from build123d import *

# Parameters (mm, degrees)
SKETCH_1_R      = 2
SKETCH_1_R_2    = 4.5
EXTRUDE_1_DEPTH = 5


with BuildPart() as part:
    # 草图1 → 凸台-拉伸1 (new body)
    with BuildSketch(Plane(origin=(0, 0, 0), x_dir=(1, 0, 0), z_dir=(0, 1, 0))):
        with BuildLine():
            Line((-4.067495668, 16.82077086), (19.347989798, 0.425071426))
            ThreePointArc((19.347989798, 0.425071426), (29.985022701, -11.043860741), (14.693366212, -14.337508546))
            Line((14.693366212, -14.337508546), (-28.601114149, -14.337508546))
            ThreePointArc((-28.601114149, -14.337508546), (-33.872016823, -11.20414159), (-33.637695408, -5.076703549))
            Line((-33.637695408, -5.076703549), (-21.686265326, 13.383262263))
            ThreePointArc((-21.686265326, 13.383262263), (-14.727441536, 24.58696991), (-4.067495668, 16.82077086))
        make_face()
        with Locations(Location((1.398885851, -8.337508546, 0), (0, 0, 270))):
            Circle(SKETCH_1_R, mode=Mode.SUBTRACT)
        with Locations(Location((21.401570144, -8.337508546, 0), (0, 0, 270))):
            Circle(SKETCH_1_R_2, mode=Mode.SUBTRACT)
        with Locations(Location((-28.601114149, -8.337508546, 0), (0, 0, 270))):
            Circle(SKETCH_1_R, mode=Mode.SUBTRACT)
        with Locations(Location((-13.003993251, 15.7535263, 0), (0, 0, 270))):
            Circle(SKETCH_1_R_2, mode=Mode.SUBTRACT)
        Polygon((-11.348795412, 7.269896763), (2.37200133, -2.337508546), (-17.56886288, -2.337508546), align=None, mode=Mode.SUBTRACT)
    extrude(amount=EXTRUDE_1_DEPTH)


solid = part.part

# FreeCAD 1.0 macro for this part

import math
import FreeCAD as App
import Part
import Sketcher

V = App.Vector
Q = App.Units.Quantity


def add_polygon(sketch, points):
    """Adds a closed chain of lines whose ends are joined by coincident constraints."""
    first, n = sketch.GeometryCount, len(points)
    for a, b in zip(points, points[1:] + points[:1]):
        sketch.addGeometry(Part.LineSegment(App.Vector(*a, 0), App.Vector(*b, 0)), False)
    for i in range(n):
        sketch.addConstraint(Sketcher.Constraint("Coincident", first + i, 2, first + (i + 1) % n, 1))

doc = App.newDocument("Part")
body = doc.addObject("PartDesign::Body", "Body")

# Sketch on XZ plane
sketch1 = body.newObject("Sketcher::SketchObject", "Sketch")
sketch1.AttachmentSupport = (doc.getObject("XZ_Plane"), [""])
sketch1.MapMode = "FlatFace"
sketch1.addGeometry(Part.LineSegment(V(19.34799, -0.425071, 0), V(-4.067496, -16.820771, 0)), False)  # 0
sketch1.addGeometry(Part.ArcOfCircle(Part.Circle(V(-13.003993, -15.753526, 0), V(0, 0, 1), 9), math.radians(164.730315), math.radians(353.189685)), False)  # 1
sketch1.addGeometry(Part.LineSegment(V(-21.686265, -13.383262, 0), V(-33.637695, 5.076704, 0)), False)  # 2
sketch1.addGeometry(Part.ArcOfCircle(Part.Circle(V(-28.601114, 8.337509, 0), V(0, 0, 1), 6), math.radians(90), math.radians(212.92)), False)  # 3
sketch1.addGeometry(Part.LineSegment(V(-28.601114, 14.337509, 0), V(14.693366, 14.337509, 0)), False)  # 4
sketch1.addGeometry(Part.ArcOfCircle(Part.Circle(V(21.40157, 8.337509, 0), V(0, 0, 1), 9), math.radians(-103.189685), math.radians(138.189685)), False)  # 5
sketch1.addGeometry(Part.Circle(V(21.40157, 8.337509, 0), V(0, 0, 1), 4.5), False)  # 6
sketch1.addGeometry(Part.Circle(V(1.398886, 8.337509, 0), V(0, 0, 1), 2), False)  # 7
sketch1.addGeometry(Part.Circle(V(-28.601114, 8.337509, 0), V(0, 0, 1), 2), False)  # 8
add_polygon(sketch1, [(-11.348795, -7.269897), (2.372001, 2.337509), (-17.568863, 2.337509)])  # lines 9-11
sketch1.addGeometry(Part.Circle(V(-13.003993, -15.753526, 0), V(0, 0, 1), 4.5), False)  # 12
sketch1.addConstraint([
    Sketcher.Constraint("Coincident", 0, 2, 1, 2),
    Sketcher.Constraint("Coincident", 1, 1, 2, 1),
    Sketcher.Constraint("Tangent", 2, 2, 3, 2),
    Sketcher.Constraint("Tangent", 3, 1, 4, 1),
    Sketcher.Constraint("Coincident", 4, 2, 5, 2),
    Sketcher.Constraint("Coincident", 5, 1, 0, 1),
    Sketcher.Constraint("Horizontal", 4),
    Sketcher.Constraint("Horizontal", 10),
    Sketcher.Constraint("Coincident", 6, 3, 5, 3),
    Sketcher.Constraint("Coincident", 8, 3, 3, 3),
    Sketcher.Constraint("Coincident", 12, 3, 1, 3),
    Sketcher.Constraint("Equal", 1, 5),
    Sketcher.Constraint("Equal", 7, 8),
    Sketcher.Constraint("Equal", 6, 12),
    Sketcher.Constraint("Parallel", 0, 9),
    Sketcher.Constraint("Parallel", 2, 11),
    Sketcher.Constraint("Horizontal", 3, 3, 5, 3),
    Sketcher.Constraint("Horizontal", 6, 3, 7, 3),
    Sketcher.Constraint("Diameter", 6, Q("9 mm")),
    Sketcher.Constraint("Diameter", 7, Q("4 mm")),
    Sketcher.Constraint("Radius", 1, Q("9 mm")),
    Sketcher.Constraint("Radius", 3, Q("6 mm")),
    Sketcher.Constraint("Angle", 0, Q("-145 deg")),
    Sketcher.Constraint("DistanceX", 3, 3, 7, 3, Q("30 mm")),
    Sketcher.Constraint("DistanceY", 9, 2, 7, 3, Q("6 mm")),
    Sketcher.Constraint("Angle", 2, Q("122.92 deg")),
    Sketcher.Constraint("Distance", 9, Q("16.75 mm")),
    Sketcher.Constraint("DistanceX", -1, 1, 9, 2, Q("2.372001 mm")),
    Sketcher.Constraint("DistanceX", 4, 1, 4, 2, Q("43.29448 mm")),
    Sketcher.Constraint("DistanceY", 0, 2, 5, 1, Q("16.395699 mm")),
    Sketcher.Constraint("DistanceX", 11, 2, 0, 2, Q("7.2813 mm")),
    Sketcher.Constraint("DistanceY", -1, 1, 3, 3, Q("8.337509 mm")),
    Sketcher.Constraint("DistanceX", -1, 1, 5, 3, Q("21.40157 mm")),
    Sketcher.Constraint("DistanceX", 3, 3, 1, 3, Q("15.597121 mm")),
])
pad1 = body.newObject("PartDesign::Pad", "Pad")
pad1.Profile = sketch1
pad1.Length = 5
pad1.Reversed = True

doc.recompute()
